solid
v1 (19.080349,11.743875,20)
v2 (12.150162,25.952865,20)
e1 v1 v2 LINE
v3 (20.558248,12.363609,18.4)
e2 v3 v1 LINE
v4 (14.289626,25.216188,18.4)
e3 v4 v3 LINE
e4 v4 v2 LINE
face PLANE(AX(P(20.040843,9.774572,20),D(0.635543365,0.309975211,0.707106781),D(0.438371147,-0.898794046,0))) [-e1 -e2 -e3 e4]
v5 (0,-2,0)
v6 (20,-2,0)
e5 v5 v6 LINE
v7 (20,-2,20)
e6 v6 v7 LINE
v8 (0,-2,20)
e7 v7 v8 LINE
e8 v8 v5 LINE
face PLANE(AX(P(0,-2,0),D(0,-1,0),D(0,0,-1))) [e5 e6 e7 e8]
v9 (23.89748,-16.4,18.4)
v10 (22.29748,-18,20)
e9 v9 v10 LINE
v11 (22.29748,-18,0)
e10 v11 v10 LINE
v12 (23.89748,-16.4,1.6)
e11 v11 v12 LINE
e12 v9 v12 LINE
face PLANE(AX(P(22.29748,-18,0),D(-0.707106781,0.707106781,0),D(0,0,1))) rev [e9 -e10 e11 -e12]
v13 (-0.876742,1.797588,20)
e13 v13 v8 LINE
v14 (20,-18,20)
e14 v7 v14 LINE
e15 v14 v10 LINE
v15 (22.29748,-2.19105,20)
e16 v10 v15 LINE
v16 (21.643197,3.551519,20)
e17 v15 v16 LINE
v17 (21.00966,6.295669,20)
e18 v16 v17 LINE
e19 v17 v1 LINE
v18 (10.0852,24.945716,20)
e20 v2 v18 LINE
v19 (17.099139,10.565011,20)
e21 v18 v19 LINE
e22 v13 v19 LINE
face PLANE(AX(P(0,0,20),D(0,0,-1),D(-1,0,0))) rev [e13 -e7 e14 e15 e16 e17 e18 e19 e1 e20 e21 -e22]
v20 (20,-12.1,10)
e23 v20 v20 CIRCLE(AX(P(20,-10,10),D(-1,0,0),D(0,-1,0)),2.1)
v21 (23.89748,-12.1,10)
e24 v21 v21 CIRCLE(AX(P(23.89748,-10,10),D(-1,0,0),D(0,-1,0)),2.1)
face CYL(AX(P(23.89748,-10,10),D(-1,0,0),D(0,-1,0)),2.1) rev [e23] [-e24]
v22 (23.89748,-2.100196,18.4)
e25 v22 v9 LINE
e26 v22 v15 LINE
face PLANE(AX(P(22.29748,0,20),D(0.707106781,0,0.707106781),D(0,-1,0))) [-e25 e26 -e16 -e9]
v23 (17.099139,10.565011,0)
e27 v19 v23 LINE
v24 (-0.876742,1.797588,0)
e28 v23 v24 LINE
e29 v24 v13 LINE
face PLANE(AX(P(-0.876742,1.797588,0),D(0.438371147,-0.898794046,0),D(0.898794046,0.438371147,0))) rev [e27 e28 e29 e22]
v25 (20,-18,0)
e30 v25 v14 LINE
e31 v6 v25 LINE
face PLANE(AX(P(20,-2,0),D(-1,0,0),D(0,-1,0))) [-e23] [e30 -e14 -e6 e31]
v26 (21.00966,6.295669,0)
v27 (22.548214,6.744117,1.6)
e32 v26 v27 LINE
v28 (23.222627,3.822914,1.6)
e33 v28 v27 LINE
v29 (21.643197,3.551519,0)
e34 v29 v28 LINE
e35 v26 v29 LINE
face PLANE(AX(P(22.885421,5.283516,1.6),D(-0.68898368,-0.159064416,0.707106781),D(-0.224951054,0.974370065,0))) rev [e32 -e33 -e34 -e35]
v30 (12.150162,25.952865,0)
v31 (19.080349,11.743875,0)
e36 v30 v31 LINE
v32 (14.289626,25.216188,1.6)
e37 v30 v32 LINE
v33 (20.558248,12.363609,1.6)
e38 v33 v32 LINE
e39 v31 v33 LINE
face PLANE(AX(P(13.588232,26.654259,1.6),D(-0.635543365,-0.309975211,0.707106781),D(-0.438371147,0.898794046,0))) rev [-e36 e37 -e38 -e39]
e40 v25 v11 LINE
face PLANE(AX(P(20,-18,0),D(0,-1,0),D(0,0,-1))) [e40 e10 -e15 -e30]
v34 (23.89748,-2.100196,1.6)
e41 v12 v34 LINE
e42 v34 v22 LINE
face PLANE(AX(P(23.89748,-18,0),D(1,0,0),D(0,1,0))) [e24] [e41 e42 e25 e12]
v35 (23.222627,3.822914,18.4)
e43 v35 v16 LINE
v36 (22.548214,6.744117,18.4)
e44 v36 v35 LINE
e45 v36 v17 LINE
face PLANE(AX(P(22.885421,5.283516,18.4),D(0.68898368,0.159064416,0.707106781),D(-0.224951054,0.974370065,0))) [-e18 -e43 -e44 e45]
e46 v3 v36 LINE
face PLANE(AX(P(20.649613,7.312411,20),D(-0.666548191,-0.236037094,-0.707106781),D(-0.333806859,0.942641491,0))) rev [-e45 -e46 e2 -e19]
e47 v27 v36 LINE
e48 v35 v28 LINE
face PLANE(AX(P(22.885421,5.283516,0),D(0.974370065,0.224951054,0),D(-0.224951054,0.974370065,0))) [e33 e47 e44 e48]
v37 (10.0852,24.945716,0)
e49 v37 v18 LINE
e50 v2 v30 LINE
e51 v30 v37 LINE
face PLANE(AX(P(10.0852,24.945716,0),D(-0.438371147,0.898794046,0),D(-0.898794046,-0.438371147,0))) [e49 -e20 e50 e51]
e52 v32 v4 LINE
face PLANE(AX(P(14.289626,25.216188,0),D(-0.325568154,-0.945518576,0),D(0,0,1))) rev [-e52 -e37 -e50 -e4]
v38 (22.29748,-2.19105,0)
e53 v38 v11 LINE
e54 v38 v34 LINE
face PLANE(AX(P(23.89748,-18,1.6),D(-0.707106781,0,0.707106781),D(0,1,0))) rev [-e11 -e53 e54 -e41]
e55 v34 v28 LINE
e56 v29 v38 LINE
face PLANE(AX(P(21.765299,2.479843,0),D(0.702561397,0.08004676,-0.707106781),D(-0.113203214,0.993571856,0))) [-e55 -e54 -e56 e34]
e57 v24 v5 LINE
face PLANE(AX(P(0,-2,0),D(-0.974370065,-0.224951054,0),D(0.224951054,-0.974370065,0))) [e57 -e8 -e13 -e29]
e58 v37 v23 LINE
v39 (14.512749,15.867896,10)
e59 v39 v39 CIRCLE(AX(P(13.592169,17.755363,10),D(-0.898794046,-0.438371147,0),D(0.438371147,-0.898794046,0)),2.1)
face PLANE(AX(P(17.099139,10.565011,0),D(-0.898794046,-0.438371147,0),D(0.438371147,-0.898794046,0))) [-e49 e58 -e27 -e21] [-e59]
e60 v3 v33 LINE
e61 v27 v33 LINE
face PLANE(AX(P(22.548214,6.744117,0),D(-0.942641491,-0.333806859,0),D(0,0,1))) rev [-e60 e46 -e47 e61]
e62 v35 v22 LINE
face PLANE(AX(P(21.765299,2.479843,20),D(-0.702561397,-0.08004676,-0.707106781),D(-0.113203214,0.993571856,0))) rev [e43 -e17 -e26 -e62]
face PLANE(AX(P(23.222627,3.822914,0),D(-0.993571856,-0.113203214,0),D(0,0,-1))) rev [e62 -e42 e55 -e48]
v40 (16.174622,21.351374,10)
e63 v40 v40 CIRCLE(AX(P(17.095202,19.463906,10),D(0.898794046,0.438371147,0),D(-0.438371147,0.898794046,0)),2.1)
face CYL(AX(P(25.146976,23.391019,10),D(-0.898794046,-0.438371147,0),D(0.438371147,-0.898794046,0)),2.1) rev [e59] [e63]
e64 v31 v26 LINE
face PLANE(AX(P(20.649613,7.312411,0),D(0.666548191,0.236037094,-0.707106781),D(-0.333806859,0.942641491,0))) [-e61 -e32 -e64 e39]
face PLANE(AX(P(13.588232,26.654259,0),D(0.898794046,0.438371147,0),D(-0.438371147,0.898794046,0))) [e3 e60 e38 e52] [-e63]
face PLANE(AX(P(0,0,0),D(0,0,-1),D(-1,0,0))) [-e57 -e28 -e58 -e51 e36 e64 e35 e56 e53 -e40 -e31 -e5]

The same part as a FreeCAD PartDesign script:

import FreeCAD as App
import Part
import Sketcher
from FreeCAD import Vector
Q = App.Units.Quantity


def edges_at(feature, points):
    """Names of the edges that pass closest to the given points."""
    edges = feature.Shape.Edges
    near = lambda p: min(range(len(edges)), key=lambda i: edges[i].distToShape(Part.Vertex(*p))[0])
    return sorted({f"Edge{near(p) + 1}" for p in points})

doc = App.newDocument("Part")
params = doc.addObject("Spreadsheet::Sheet", "Params")
for row, (alias, value) in enumerate([
    ("sketch1_width", "20 mm"),
    ("pad1_length", "20 mm"),
    ("sketch2_width", "20 mm"),
    ("pad2_length", "2 mm"),
    ("sketch3_width", "20 mm"),
    ("pad3_length", "2 mm"),
    ("sketch4_width", "20 mm"),
    ("pad4_length", "4 mm"),
    ("sketch5_height", "18 mm"),
    ("sketch5_length", "16 mm"),
    ("sketch5_length2", "2 mm"),
    ("sketch5_length3", "4 mm"),
    ("pad5_length", "20 mm"),
    ("chamfer_size", "3 mm"),
    ("chamfer2_size", "1.6 mm"),
    ("sketch6_diameter", "4.2 mm"),
    ("sketch7_diameter", "4.2 mm"),
    ("sketch8_height", "2 mm"),
    ("pad6_length", "20 mm"),
], start=1):
    params.set(f"A{row}", alias)
    params.set(f"B{row}", "=" + value)
    params.setAlias(f"B{row}", alias)

body = doc.addObject("PartDesign::Body", "Body")

sketch1 = body.newObject("Sketcher::SketchObject", "Sketch")
sketch1.AttachmentSupport = (doc.getObject("XY_Plane"), [""])
sketch1.MapMode = "FlatFace"
sketch1.addGeometry([
    Part.LineSegment(Vector(0, 0, 0), Vector(20, 0, 0)),
    Part.LineSegment(Vector(20, 0, 0), Vector(18, 9, 0)),
    Part.LineSegment(Vector(18, 9, 0), Vector(0, 0, 0)),
], False)
sketch1.addConstraint([
    Sketcher.Constraint("Coincident", 0, 2, 1, 1),
    Sketcher.Constraint("Coincident", 1, 2, 2, 1),
    Sketcher.Constraint("Coincident", 2, 2, 0, 1),
    Sketcher.Constraint("Horizontal", 0),
    Sketcher.Constraint("Coincident", 2, 2, -1, 1),
    Sketcher.Constraint("DistanceX", 0, 1, 0, 2, 20.0),
    Sketcher.Constraint("Angle", 1, Q("103 deg")),
    Sketcher.Constraint("Angle", 2, Q("-154 deg")),
])
sketch1.setExpression("Constraints[5]", "Params.sketch1_width")
pad1 = body.newObject("PartDesign::Pad", "Pad")
pad1.Profile = sketch1
pad1.setExpression("Length", "Params.pad1_length")

sketch2 = body.newObject("Sketcher::SketchObject", "Sketch001")
sketch2.Placement = App.Placement(Vector(0, 0, 0), App.Rotation(Vector(0.898794046, 0.438371147, 0), Vector(0, 0, -1), Vector(-0.438371147, 0.898794046, 0), "ZXY"))
sketch2.addGeometry([
    Part.LineSegment(Vector(0, 0, 0), Vector(0, -20, 0)),
    Part.LineSegment(Vector(0, -20, 0), Vector(20, -20, 0)),
    Part.LineSegment(Vector(20, -20, 0), Vector(20, 0, 0)),
    Part.LineSegment(Vector(20, 0, 0), Vector(0, 0, 0)),
], False)
sketch2.addConstraint([
    Sketcher.Constraint("Coincident", 0, 2, 1, 1),
    Sketcher.Constraint("Coincident", 1, 2, 2, 1),
    Sketcher.Constraint("Coincident", 2, 2, 3, 1),
    Sketcher.Constraint("Coincident", 3, 2, 0, 1),
    Sketcher.Constraint("Vertical", 0),
    Sketcher.Constraint("Horizontal", 1),
    Sketcher.Constraint("Vertical", 2),
    Sketcher.Constraint("Horizontal", 3),
    Sketcher.Constraint("Coincident", 3, 2, -1, 1),
    Sketcher.Constraint("Equal", 3, 0),
    Sketcher.Constraint("DistanceX", 1, 1, 1, 2, 20.0),
])
sketch2.setExpression("Constraints[10]", "Params.sketch2_width")
pad2 = body.newObject("PartDesign::Pad", "Pad001")
pad2.Profile = sketch2
pad2.setExpression("Length", "Params.pad2_length")

sketch3 = body.newObject("Sketcher::SketchObject", "Sketch002")
sketch3.AttachmentSupport = (doc.getObject("XZ_Plane"), [""])
sketch3.MapMode = "FlatFace"
sketch3.addGeometry([
    Part.LineSegment(Vector(0, 20, 0), Vector(0, 0, 0)),
    Part.LineSegment(Vector(0, 0, 0), Vector(20, 0, 0)),
    Part.LineSegment(Vector(20, 0, 0), Vector(20, 20, 0)),
    Part.LineSegment(Vector(20, 20, 0), Vector(0, 20, 0)),
], False)
sketch3.addConstraint([
    Sketcher.Constraint("Coincident", 0, 2, 1, 1),
    Sketcher.Constraint("Coincident", 1, 2, 2, 1),
    Sketcher.Constraint("Coincident", 2, 2, 3, 1),
    Sketcher.Constraint("Coincident", 3, 2, 0, 1),
    Sketcher.Constraint("Vertical", 0),
    Sketcher.Constraint("Horizontal", 1),
    Sketcher.Constraint("Vertical", 2),
    Sketcher.Constraint("Horizontal", 3),
    Sketcher.Constraint("Coincident", 0, 2, -1, 1),
    Sketcher.Constraint("Equal", 3, 0),
    Sketcher.Constraint("DistanceX", 1, 1, 1, 2, 20.0),
])
sketch3.setExpression("Constraints[10]", "Params.sketch3_width")
pad3 = body.newObject("PartDesign::Pad", "Pad002")
pad3.Profile = sketch3
pad3.setExpression("Length", "Params.pad3_length")

sketch4 = body.newObject("Sketcher::SketchObject", "Sketch003")
sketch4.Placement = App.Placement(Vector(18.98794, 4.383711, 0), App.Rotation(Vector(0, 0, -1), Vector(-0.224951054, 0.974370065, 0), Vector(0.974370065, 0.224951054, 0), "ZXY"))
sketch4.addGeometry([
    Part.LineSegment(Vector(-20, 4, 0), Vector(-20, -4, 0)),
    Part.LineSegment(Vector(-20, -4, 0), Vector(0, -4, 0)),
    Part.LineSegment(Vector(0, -4, 0), Vector(0, 4, 0)),
    Part.LineSegment(Vector(0, 4, 0), Vector(-20, 4, 0)),
], False)
sketch4.addConstraint([
    Sketcher.Constraint("Coincident", 0, 2, 1, 1),
    Sketcher.Constraint("Coincident", 1, 2, 2, 1),
    Sketcher.Constraint("Coincident", 2, 2, 3, 1),
    Sketcher.Constraint("Coincident", 3, 2, 0, 1),
    Sketcher.Constraint("Vertical", 0),
    Sketcher.Constraint("Horizontal", 1),
    Sketcher.Constraint("Vertical", 2),
    Sketcher.Constraint("Horizontal", 3),
    Sketcher.Constraint("Symmetric", 1, 2, 2, 2, -1, 1),
    Sketcher.Constraint("DistanceX", 1, 1, 1, 2, 20.0),
    Sketcher.Constraint("DistanceY", 0, 2, 0, 1, 8.998042),
])
sketch4.setExpression("Constraints[9]", "Params.sketch4_width")
pad4 = body.newObject("PartDesign::Pad", "Pad003")
pad4.Profile = sketch4
pad4.setExpression("Length", "Params.pad4_length")

sketch5 = body.newObject("Sketcher::SketchObject", "Sketch004")
sketch5.AttachmentSupport = (doc.getObject("XY_Plane"), [""])
sketch5.MapMode = "FlatFace"
sketch5.AttachmentOffset = App.Placement(Vector(0, 0, 20), App.Rotation())
sketch5.addGeometry([
    Part.LineSegment(Vector(10.1, 24.9, 0), Vector(17.1, 10.6, 0)),
    Part.LineSegment(Vector(17.1, 10.6, 0), Vector(18, 8.8, 0)),
    Part.LineSegment(Vector(18, 8.8, 0), Vector(21.9, 9.7, 0)),
    Part.LineSegment(Vector(21.9, 9.7, 0), Vector(13.6, 26.7, 0)),
    Part.LineSegment(Vector(13.6, 26.7, 0), Vector(10.1, 24.9, 0)),
    Part.LineSegment(Vector(20, 0, 0), Vector(20, -18, 0)),
    Part.LineSegment(Vector(20, -18, 0), Vector(23.9, -18, 0)),
    Part.LineSegment(Vector(23.9, -18, 0), Vector(23.9, 0.9, 0)),
    Part.LineSegment(Vector(23.9, 0.9, 0), Vector(20, 0, 0)),
], False)
sketch5.addConstraint([
    Sketcher.Constraint("Coincident", 0, 2, 1, 1),
    Sketcher.Constraint("Coincident", 1, 2, 2, 1),
    Sketcher.Constraint("Coincident", 2, 2, 3, 1),
    Sketcher.Constraint("Coincident", 3, 2, 4, 1),
    Sketcher.Constraint("Coincident", 4, 2, 0, 1),
    Sketcher.Constraint("Coincident", 5, 2, 6, 1),
    Sketcher.Constraint("Coincident", 6, 2, 7, 1),
    Sketcher.Constraint("Coincident", 7, 2, 8, 1),
    Sketcher.Constraint("Coincident", 8, 2, 5, 1),
    Sketcher.Constraint("Vertical", 5),
    Sketcher.Constraint("Horizontal", 6),
    Sketcher.Constraint("Vertical", 7),
    Sketcher.Constraint("PointOnObject", 8, 2, -1),
    Sketcher.Constraint("Parallel", 0, 1),
    Sketcher.Constraint("Parallel", 1, 3),
    Sketcher.Constraint("Perpendicular", 3, 4),
    Sketcher.Constraint("Parallel", 2, 8),
    Sketcher.Constraint("Equal", 2, 8),
    Sketcher.Constraint("DistanceY", 5, 2, 5, 1, 18.0),
    Sketcher.Constraint("Angle", 0, Q("-64 deg")),
    Sketcher.Constraint("Angle", 2, Q("13 deg")),
    Sketcher.Constraint("Distance", 0, 16.0),
    Sketcher.Constraint("Distance", 1, 2.0),
    Sketcher.Constraint("Distance", 2, 4.0),
    Sketcher.Constraint("DistanceX", -1, 1, 5, 2, 20.0),
    Sketcher.Constraint("DistanceX", -1, 1, 4, 2, 10.0852),
    Sketcher.Constraint("DistanceY", -1, 1, 0, 2, 10.565011),
])
sketch5.setExpression("Constraints[18]", "Params.sketch5_height")
sketch5.setExpression("Constraints[21]", "Params.sketch5_length")
sketch5.setExpression("Constraints[22]", "Params.sketch5_length2")
sketch5.setExpression("Constraints[23]", "Params.sketch5_length3")
pad5 = body.newObject("PartDesign::Pad", "Pad004")
pad5.Profile = sketch5
pad5.setExpression("Length", "Params.pad5_length")
pad5.Reversed = True
doc.recompute()

chamfer = body.newObject("PartDesign::Chamfer", "Chamfer")
chamfer.Base = (pad5, edges_at(pad5, [(23.897, 0.9, 10), (21.873, 9.667, 10)]))
chamfer.setExpression("Size", "Params.chamfer_size")
doc.recompute()

chamfer2 = body.newObject("PartDesign::Chamfer", "Chamfer001")
chamfer2.Base = (chamfer, edges_at(chamfer, [
    (13.588, 26.654, 10),
    (23.897, -10.05, 0),
    (23.897, -18, 10),
    (23.897, -10.05, 20),
    (22.885, 5.284, 20),
    (22.885, 5.284, 0),
    (17.073, 19.509, 0),
    (21.553, 9.554, 0),
    (23.56, 0.861, 0),
    (17.073, 19.509, 20),
    (21.553, 9.554, 20),
    (23.56, 0.861, 20),
]))
chamfer2.setExpression("Size", "Params.chamfer2_size")

sketch6 = body.newObject("Sketcher::SketchObject", "Sketch005")
sketch6.Placement = App.Placement(Vector(17.975881, 8.767423, 0), App.Rotation(Vector(0, 0, 1), Vector(-0.438371147, 0.898794046, 0), Vector(-0.898794046, -0.438371147, 0), "ZXY"))
sketch6.addGeometry(Part.Circle(Vector(10, 10, 0), Vector(0, 0, 1), 2.1), False)
sketch6.addConstraint([
    Sketcher.Constraint("Diameter", 0, 4.2),
    Sketcher.Constraint("DistanceX", -1, 1, 0, 3, 10.0),
    Sketcher.Constraint("DistanceY", -1, 1, 0, 3, 10.0),
])
sketch6.setExpression("Constraints[0]", "Params.sketch6_diameter")
pocket1 = body.newObject("PartDesign::Pocket", "Pocket")
pocket1.Profile = sketch6
pocket1.Type = "ThroughAll"

sketch7 = body.newObject("Sketcher::SketchObject", "Sketch006")
sketch7.AttachmentSupport = (doc.getObject("YZ_Plane"), [""])
sketch7.MapMode = "FlatFace"
sketch7.AttachmentOffset = App.Placement(Vector(0, 0, 20), App.Rotation())
sketch7.addGeometry(Part.Circle(Vector(-10, 10, 0), Vector(0, 0, 1), 2.1), False)
sketch7.addConstraint([
    Sketcher.Constraint("Diameter", 0, 4.2),
    Sketcher.Constraint("DistanceX", 0, 3, -1, 1, 10.0),
    Sketcher.Constraint("DistanceY", -1, 1, 0, 3, 10.0),
])
sketch7.setExpression("Constraints[0]", "Params.sketch7_diameter")
pocket2 = body.newObject("PartDesign::Pocket", "Pocket001")
pocket2.Profile = sketch7
pocket2.Type = "ThroughAll"
pocket2.Reversed = True

sketch8 = body.newObject("Sketcher::SketchObject", "Sketch007")
sketch8.AttachmentSupport = (doc.getObject("XY_Plane"), [""])
sketch8.MapMode = "FlatFace"
sketch8.AttachmentOffset = App.Placement(Vector(0, 0, 20), App.Rotation())
sketch8.addGeometry([
    Part.LineSegment(Vector(0, 0, 0), Vector(-0.9, 1.8, 0)),
    Part.LineSegment(Vector(-0.9, 1.8, 0), Vector(0, -2, 0)),
    Part.LineSegment(Vector(0, -2, 0), Vector(0, 0, 0)),
], False)
sketch8.addConstraint([
    Sketcher.Constraint("Coincident", 0, 2, 1, 1),
    Sketcher.Constraint("Coincident", 1, 2, 2, 1),
    Sketcher.Constraint("Coincident", 2, 2, 0, 1),
    Sketcher.Constraint("Vertical", 2),
    Sketcher.Constraint("Coincident", 2, 2, -1, 1),
    Sketcher.Constraint("DistanceY", 2, 1, 2, 2, 2.0),
    Sketcher.Constraint("Angle", 0, Q("116 deg")),
    Sketcher.Constraint("Angle", 1, Q("-77 deg")),
])
sketch8.setExpression("Constraints[5]", "Params.sketch8_height")
pad6 = body.newObject("PartDesign::Pad", "Pad005")
pad6.Profile = sketch8
pad6.setExpression("Length", "Params.pad6_length")
pad6.Reversed = True

doc.recompute()
